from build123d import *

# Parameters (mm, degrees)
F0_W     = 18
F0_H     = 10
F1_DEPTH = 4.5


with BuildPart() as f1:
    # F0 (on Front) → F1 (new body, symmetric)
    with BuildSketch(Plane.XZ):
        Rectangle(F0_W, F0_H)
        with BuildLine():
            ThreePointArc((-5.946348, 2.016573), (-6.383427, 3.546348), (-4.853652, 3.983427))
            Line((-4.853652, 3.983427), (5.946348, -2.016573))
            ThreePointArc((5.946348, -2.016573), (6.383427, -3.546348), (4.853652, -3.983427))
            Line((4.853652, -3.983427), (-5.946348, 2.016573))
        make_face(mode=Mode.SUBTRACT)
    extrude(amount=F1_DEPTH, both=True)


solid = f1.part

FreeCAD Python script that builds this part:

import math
import FreeCAD as App
import Part
import Sketcher
from FreeCAD import Vector
Q = App.Units.Quantity

doc = App.newDocument("Part")
params = doc.addObject("Spreadsheet::Sheet", "Params")
for row, (alias, value) in enumerate([
    ("sketch1_width", "18 mm"),
    ("sketch1_height", "10 mm"),
    ("pad1_length", "9 mm"),
], start=1):
    params.set(f"A{row}", alias)
    params.set(f"B{row}", "=" + value)
    params.setAlias(f"B{row}", alias)

body = doc.addObject("PartDesign::Body", "Body")

# Sketch on XZ plane
sketch1 = doc.addObject("Sketcher::SketchObject", "Sketch")
body.addObject(sketch1)
sketch1.AttachmentSupport = (doc.XZ_Plane, [""])
sketch1.MapMode = "FlatFace"
sketch1.addGeometry(Part.LineSegment(Vector(-9, 5, 0), Vector(-9, -5, 0)), False)
sketch1.addGeometry(Part.LineSegment(Vector(-9, -5, 0), Vector(9, -5, 0)), False)
sketch1.addGeometry(Part.LineSegment(Vector(9, -5, 0), Vector(9, 5, 0)), False)
sketch1.addGeometry(Part.LineSegment(Vector(9, 5, 0), Vector(-9, 5, 0)), False)
sketch1.addGeometry(Part.LineSegment(Vector(4.853652, -3.983427, 0), Vector(-5.946348, 2.016573, 0)), False)
sketch1.addGeometry(Part.ArcOfCircle(Part.Circle(Vector(-5.4, 3, 0), Vector(0, 0, 1), 1.125), math.radians(60.945411), math.radians(240.945411)), False)
sketch1.addGeometry(Part.LineSegment(Vector(-4.853652, 3.983427, 0), Vector(5.946348, -2.016573, 0)), False)
sketch1.addGeometry(Part.ArcOfCircle(Part.Circle(Vector(5.4, -3, 0), Vector(0, 0, 1), 1.125), math.radians(-119.054589), math.radians(60.945411)), False)
sketch1.addConstraint(Sketcher.Constraint("Coincident", 0, 2, 1, 1))
sketch1.addConstraint(Sketcher.Constraint("Coincident", 1, 2, 2, 1))
sketch1.addConstraint(Sketcher.Constraint("Coincident", 2, 2, 3, 1))
sketch1.addConstraint(Sketcher.Constraint("Coincident", 3, 2, 0, 1))
sketch1.addConstraint(Sketcher.Constraint("Tangent", 4, 2, 5, 2))
sketch1.addConstraint(Sketcher.Constraint("Tangent", 5, 1, 6, 1))
sketch1.addConstraint(Sketcher.Constraint("Tangent", 6, 2, 7, 2))
sketch1.addConstraint(Sketcher.Constraint("Tangent", 7, 1, 4, 1))
sketch1.addConstraint(Sketcher.Constraint("Vertical", 0))
sketch1.addConstraint(Sketcher.Constraint("Horizontal", 1))
sketch1.addConstraint(Sketcher.Constraint("Vertical", 2))
sketch1.addConstraint(Sketcher.Constraint("Horizontal", 3))
sketch1.addConstraint(Sketcher.Constraint("Equal", 5, 7))
sketch1.addConstraint(Sketcher.Constraint("Symmetric", 5, 3, 7, 3, -1, 1))
sketch1.addConstraint(Sketcher.Constraint("Symmetric", 0, 2, 2, 2, -1, 1))
sketch1.addConstraint(Sketcher.Constraint("DistanceX", 1, 1, 1, 2, Q("18 mm")))
sketch1.addConstraint(Sketcher.Constraint("DistanceY", 0, 2, 0, 1, Q("10 mm")))
sketch1.addConstraint(Sketcher.Constraint("DistanceY", -1, 1, 5, 3, Q("3 mm")))
sketch1.addConstraint(Sketcher.Constraint("Radius", 5, Q("1.125 mm")))
sketch1.addConstraint(Sketcher.Constraint("DistanceX", 5, 3, -1, 1, Q("5.4 mm")))
sketch1.setExpression("Constraints[15]", "Params.sketch1_width")
sketch1.setExpression("Constraints[16]", "Params.sketch1_height")
pad1 = doc.addObject("PartDesign::Pad", "Pad")
body.addObject(pad1)
pad1.Profile = sketch1
pad1.setExpression("Length", "Params.pad1_length")
pad1.Midplane = True

doc.recompute()
